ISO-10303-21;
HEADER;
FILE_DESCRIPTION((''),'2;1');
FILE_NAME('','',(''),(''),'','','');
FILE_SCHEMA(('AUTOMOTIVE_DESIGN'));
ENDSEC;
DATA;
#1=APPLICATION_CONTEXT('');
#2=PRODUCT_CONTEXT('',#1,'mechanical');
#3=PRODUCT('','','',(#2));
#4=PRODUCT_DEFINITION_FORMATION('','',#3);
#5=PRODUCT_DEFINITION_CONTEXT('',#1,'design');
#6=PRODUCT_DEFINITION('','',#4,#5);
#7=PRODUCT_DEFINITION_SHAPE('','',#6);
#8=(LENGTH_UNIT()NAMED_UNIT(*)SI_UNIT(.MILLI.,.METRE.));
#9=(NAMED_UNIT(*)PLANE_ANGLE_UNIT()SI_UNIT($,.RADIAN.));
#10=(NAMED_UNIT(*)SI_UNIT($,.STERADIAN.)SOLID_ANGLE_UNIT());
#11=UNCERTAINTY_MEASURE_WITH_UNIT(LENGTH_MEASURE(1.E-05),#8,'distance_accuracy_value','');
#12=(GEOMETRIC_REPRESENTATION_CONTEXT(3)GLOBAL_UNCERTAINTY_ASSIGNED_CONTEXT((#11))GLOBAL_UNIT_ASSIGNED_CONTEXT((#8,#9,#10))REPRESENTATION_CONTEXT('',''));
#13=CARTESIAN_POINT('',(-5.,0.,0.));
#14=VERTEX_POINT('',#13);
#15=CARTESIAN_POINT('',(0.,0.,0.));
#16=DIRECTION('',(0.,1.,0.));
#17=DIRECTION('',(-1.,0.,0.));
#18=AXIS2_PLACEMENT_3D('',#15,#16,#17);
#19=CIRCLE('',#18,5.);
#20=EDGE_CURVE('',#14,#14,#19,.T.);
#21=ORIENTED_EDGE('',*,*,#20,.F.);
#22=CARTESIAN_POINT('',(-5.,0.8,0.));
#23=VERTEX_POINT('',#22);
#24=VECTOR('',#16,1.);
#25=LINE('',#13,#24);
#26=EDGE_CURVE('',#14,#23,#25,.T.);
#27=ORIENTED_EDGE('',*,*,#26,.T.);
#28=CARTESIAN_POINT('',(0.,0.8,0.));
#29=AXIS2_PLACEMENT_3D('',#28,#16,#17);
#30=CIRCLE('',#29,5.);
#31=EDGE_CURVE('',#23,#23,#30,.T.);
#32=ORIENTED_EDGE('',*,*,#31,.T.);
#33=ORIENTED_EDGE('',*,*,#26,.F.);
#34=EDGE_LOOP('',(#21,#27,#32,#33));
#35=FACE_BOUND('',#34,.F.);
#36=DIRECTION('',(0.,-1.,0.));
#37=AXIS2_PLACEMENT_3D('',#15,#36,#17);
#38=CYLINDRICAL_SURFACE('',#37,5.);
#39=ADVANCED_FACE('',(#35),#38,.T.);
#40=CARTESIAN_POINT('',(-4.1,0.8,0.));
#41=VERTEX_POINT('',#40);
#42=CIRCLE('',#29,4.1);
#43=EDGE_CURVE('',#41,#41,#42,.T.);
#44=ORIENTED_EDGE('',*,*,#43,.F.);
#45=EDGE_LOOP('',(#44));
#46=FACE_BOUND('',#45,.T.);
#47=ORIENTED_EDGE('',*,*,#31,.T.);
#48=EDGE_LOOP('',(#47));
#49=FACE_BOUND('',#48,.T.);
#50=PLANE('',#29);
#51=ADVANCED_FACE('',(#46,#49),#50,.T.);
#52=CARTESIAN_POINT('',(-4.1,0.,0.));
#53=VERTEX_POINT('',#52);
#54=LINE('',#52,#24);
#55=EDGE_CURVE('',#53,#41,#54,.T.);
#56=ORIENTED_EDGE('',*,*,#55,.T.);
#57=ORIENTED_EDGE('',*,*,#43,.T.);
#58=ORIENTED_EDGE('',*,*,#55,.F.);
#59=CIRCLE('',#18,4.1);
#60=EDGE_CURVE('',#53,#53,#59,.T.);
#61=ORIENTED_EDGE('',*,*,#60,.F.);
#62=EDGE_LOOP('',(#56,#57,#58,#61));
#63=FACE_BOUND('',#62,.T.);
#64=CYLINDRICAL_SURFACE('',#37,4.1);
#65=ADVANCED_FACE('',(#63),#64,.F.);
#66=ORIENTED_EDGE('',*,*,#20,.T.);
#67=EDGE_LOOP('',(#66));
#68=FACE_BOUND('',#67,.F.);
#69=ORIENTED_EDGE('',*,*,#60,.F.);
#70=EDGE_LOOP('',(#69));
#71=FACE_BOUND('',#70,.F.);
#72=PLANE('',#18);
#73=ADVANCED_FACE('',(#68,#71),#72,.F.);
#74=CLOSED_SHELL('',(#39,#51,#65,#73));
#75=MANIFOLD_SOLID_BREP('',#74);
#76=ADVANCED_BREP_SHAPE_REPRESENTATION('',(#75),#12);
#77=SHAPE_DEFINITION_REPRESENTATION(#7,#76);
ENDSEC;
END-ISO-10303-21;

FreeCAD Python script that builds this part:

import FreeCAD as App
import Part
import Sketcher

V = App.Vector
Q = App.Units.Quantity

doc = App.newDocument("Part")
body = doc.addObject("PartDesign::Body", "Body")

# Sketch on XZ plane
sketch1 = doc.addObject("Sketcher::SketchObject", "Sketch")
body.addObject(sketch1)
sketch1.AttachmentSupport = (doc.XZ_Plane, [""])
sketch1.MapMode = "FlatFace"
sketch1.addGeometry(Part.Circle(V(0, 0, 0), V(0, 0, 1), 5), False)
sketch1.addGeometry(Part.Circle(V(0, 0, 0), V(0, 0, 1), 4.1), False)
sketch1.addConstraint(Sketcher.Constraint("Coincident", 0, 3, -1, 1))
sketch1.addConstraint(Sketcher.Constraint("Coincident", 1, 3, -1, 1))
sketch1.addConstraint(Sketcher.Constraint("Diameter", 0, Q("10 mm")))
sketch1.addConstraint(Sketcher.Constraint("Diameter", 1, Q("8.2 mm")))
pad1 = doc.addObject("PartDesign::Pad", "Pad")
body.addObject(pad1)
pad1.Profile = sketch1
pad1.Length = 0.8
pad1.Reversed = True

doc.recompute()
